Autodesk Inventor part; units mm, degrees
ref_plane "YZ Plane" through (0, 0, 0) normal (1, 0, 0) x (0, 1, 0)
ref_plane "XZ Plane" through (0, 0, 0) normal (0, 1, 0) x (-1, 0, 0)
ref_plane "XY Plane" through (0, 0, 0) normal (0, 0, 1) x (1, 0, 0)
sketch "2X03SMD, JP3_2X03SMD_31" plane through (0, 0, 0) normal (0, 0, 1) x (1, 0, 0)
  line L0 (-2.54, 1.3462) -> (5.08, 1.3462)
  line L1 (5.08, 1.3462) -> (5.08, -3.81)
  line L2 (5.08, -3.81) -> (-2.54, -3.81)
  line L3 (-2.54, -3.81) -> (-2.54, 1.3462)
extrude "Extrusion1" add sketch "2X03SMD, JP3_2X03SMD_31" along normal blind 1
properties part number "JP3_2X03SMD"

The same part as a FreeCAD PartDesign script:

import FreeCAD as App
import Part
import Sketcher

V = App.Vector
Q = App.Units.Quantity


def add_polygon(sketch, points):
    """Adds a closed chain of lines whose ends are joined by coincident constraints."""
    first, n = sketch.GeometryCount, len(points)
    for a, b in zip(points, points[1:] + points[:1]):
        sketch.addGeometry(Part.LineSegment(App.Vector(*a, 0), App.Vector(*b, 0)), False)
    for i in range(n):
        sketch.addConstraint(Sketcher.Constraint("Coincident", first + i, 2, first + (i + 1) % n, 1))

doc = App.newDocument("Part")
body = doc.addObject("PartDesign::Body", "Body")

# Sketch on XY plane
sketch1 = doc.addObject("Sketcher::SketchObject", "Sketch")
body.addObject(sketch1)
sketch1.AttachmentSupport = (doc.XY_Plane, [""])
sketch1.MapMode = "FlatFace"
add_polygon(sketch1, [(5, 1), (-3, 1), (-3, -4), (5, -4)])  # lines 0-3
sketch1.addConstraint(Sketcher.Constraint("Horizontal", 0))
sketch1.addConstraint(Sketcher.Constraint("Vertical", 1))
sketch1.addConstraint(Sketcher.Constraint("Horizontal", 2))
sketch1.addConstraint(Sketcher.Constraint("Vertical", 3))
sketch1.addConstraint(Sketcher.Constraint("DistanceX", 0, 2, 0, 1, Q("0.3 in")))
sketch1.addConstraint(Sketcher.Constraint("DistanceX", 0, 2, -1, 1, Q("0.1 in")))
sketch1.addConstraint(Sketcher.Constraint("DistanceY", 1, 2, 1, 1, Q("0.203 in")))
sketch1.addConstraint(Sketcher.Constraint("DistanceY", 1, 2, -1, 1, Q("0.15 in")))
pad1 = doc.addObject("PartDesign::Pad", "Pad")
body.addObject(pad1)
pad1.Profile = sketch1
pad1.Length = 1

doc.recompute()
